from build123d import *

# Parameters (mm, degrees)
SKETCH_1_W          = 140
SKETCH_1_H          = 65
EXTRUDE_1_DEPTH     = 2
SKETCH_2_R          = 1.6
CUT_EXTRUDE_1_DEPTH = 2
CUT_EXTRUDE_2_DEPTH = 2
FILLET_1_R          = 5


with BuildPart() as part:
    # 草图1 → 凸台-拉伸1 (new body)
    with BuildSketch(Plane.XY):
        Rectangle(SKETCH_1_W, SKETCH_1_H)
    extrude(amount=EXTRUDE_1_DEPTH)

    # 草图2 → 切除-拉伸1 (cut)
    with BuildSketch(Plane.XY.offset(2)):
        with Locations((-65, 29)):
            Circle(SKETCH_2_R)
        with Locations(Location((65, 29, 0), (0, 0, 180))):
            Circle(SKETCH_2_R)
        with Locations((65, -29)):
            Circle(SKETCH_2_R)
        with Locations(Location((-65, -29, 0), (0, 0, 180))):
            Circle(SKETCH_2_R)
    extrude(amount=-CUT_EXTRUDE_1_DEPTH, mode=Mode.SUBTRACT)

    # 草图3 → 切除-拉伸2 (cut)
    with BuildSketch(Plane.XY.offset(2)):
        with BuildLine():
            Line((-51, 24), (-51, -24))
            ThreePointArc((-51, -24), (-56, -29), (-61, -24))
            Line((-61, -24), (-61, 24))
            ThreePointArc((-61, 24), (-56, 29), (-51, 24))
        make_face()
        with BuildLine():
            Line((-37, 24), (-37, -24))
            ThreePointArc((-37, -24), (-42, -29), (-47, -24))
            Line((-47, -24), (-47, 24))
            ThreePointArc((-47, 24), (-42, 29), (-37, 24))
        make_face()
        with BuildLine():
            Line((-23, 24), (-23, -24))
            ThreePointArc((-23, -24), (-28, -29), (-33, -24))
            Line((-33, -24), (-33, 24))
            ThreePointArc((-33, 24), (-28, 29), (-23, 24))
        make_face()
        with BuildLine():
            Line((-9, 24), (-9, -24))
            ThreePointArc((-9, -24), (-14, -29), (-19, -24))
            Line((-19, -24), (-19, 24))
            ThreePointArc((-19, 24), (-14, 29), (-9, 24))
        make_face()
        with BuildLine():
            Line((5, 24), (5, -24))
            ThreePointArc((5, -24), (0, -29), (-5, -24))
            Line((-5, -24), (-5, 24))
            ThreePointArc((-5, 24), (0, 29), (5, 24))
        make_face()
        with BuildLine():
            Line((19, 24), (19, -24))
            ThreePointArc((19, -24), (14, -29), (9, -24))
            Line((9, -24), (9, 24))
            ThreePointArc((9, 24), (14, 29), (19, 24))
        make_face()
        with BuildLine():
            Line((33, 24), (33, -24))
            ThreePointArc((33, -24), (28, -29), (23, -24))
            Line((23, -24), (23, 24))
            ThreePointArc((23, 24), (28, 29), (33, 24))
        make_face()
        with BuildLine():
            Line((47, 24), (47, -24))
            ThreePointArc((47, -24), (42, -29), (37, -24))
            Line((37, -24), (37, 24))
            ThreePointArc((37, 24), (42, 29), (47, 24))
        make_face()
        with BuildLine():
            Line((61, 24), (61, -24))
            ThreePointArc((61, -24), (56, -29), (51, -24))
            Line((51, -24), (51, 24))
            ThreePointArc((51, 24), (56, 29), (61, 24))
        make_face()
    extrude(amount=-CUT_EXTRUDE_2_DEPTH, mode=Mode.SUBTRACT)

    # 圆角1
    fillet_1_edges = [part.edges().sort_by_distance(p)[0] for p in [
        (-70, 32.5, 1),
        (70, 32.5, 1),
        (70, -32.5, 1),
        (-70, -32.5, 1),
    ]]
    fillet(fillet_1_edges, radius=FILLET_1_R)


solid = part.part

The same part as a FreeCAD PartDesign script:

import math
import FreeCAD as App
import Part
import Sketcher
Q = App.Units.Quantity


def edges_at(feature, points):
    """Names of the edges that pass closest to the given points."""
    edges = feature.Shape.Edges
    near = lambda p: min(range(len(edges)), key=lambda i: edges[i].distToShape(Part.Vertex(*p))[0])
    return sorted({f"Edge{near(p) + 1}" for p in points})


def add_polygon(sketch, points):
    """Adds a closed chain of lines whose ends are joined by coincident constraints."""
    first, n = sketch.GeometryCount, len(points)
    for a, b in zip(points, points[1:] + points[:1]):
        sketch.addGeometry(Part.LineSegment(App.Vector(*a, 0), App.Vector(*b, 0)), False)
    for i in range(n):
        sketch.addConstraint(Sketcher.Constraint("Coincident", first + i, 2, first + (i + 1) % n, 1))

doc = App.newDocument("Part")
body = doc.addObject("PartDesign::Body", "Body")

sketch1 = doc.addObject("Sketcher::SketchObject", "Sketch")
body.addObject(sketch1)
sketch1.AttachmentSupport = (doc.XY_Plane, [""])
sketch1.MapMode = "FlatFace"
add_polygon(sketch1, [(-70, 32), (-70, -32), (70, -32), (70, 32)])
sketch1.addConstraint([
    Sketcher.Constraint("Vertical", 0),
    Sketcher.Constraint("Horizontal", 1),
    Sketcher.Constraint("Vertical", 2),
    Sketcher.Constraint("Horizontal", 3),
    Sketcher.Constraint("Symmetric", 0, 2, 2, 2, -1, 1),
    Sketcher.Constraint("DistanceX", 1, 1, 1, 2, Q("140 mm")),
    Sketcher.Constraint("DistanceY", 0, 2, 0, 1, Q("65 mm")),
])
pad1 = doc.addObject("PartDesign::Pad", "Pad")
body.addObject(pad1)
pad1.Profile = sketch1
pad1.Length = 2

sketch2 = doc.addObject("Sketcher::SketchObject", "Sketch001")
body.addObject(sketch2)
sketch2.AttachmentSupport = (doc.XY_Plane, [""])
sketch2.MapMode = "FlatFace"
sketch2.AttachmentOffset = App.Placement(App.Vector(0, 0, 2), App.Rotation())
sketch2.addGeometry([
    Part.Circle(App.Vector(-65, 29, 0), App.Vector(0, 0, 1), 1.6),
    Part.Circle(App.Vector(65, 29, 0), App.Vector(0, 0, 1), 1.6),
    Part.Circle(App.Vector(65, -29, 0), App.Vector(0, 0, 1), 1.6),
    Part.Circle(App.Vector(-65, -29, 0), App.Vector(0, 0, 1), 1.6),
], False)
sketch2.addConstraint([
    Sketcher.Constraint("Equal", 0, 1),
    Sketcher.Constraint("Equal", 1, 2),
    Sketcher.Constraint("Equal", 2, 3),
    Sketcher.Constraint("Symmetric", 0, 3, 2, 3, -1, 1),
    Sketcher.Constraint("Symmetric", 1, 3, 3, 3, -1, 1),
    Sketcher.Constraint("Symmetric", 0, 3, 1, 3, -2),
    Sketcher.Constraint("Diameter", 0, Q("3.2 mm")),
    Sketcher.Constraint("DistanceX", 0, 3, -1, 1, Q("65 mm")),
    Sketcher.Constraint("DistanceY", -1, 1, 0, 3, Q("29 mm")),
])
pocket1 = doc.addObject("PartDesign::Pocket", "Pocket")
body.addObject(pocket1)
pocket1.Profile = sketch2
pocket1.Length = 2

sketch3 = doc.addObject("Sketcher::SketchObject", "Sketch002")
body.addObject(sketch3)
sketch3.AttachmentSupport = (doc.XY_Plane, [""])
sketch3.MapMode = "FlatFace"
sketch3.AttachmentOffset = App.Placement(App.Vector(0, 0, 2), App.Rotation())
sketch3.addGeometry([
    Part.LineSegment(App.Vector(-51, -24, 0), App.Vector(-51, 24, 0)),
    Part.ArcOfCircle(Part.Circle(App.Vector(-56, 24, 0), App.Vector(0, 0, 1), 5), math.radians(0), math.radians(180)),
    Part.LineSegment(App.Vector(-61, 24, 0), App.Vector(-61, -24, 0)),
    Part.ArcOfCircle(Part.Circle(App.Vector(-56, -24, 0), App.Vector(0, 0, 1), 5), math.radians(180), math.radians(360)),
    Part.LineSegment(App.Vector(-37, -24, 0), App.Vector(-37, 24, 0)),
    Part.ArcOfCircle(Part.Circle(App.Vector(-42, 24, 0), App.Vector(0, 0, 1), 5), math.radians(0), math.radians(180)),
    Part.LineSegment(App.Vector(-47, 24, 0), App.Vector(-47, -24, 0)),
    Part.ArcOfCircle(Part.Circle(App.Vector(-42, -24, 0), App.Vector(0, 0, 1), 5), math.radians(180), math.radians(360)),
    Part.LineSegment(App.Vector(-23, -24, 0), App.Vector(-23, 24, 0)),
    Part.ArcOfCircle(Part.Circle(App.Vector(-28, 24, 0), App.Vector(0, 0, 1), 5), math.radians(0), math.radians(180)),
    Part.LineSegment(App.Vector(-33, 24, 0), App.Vector(-33, -24, 0)),
    Part.ArcOfCircle(Part.Circle(App.Vector(-28, -24, 0), App.Vector(0, 0, 1), 5), math.radians(180), math.radians(360)),
    Part.LineSegment(App.Vector(-9, -24, 0), App.Vector(-9, 24, 0)),
    Part.ArcOfCircle(Part.Circle(App.Vector(-14, 24, 0), App.Vector(0, 0, 1), 5), math.radians(0), math.radians(180)),
    Part.LineSegment(App.Vector(-19, 24, 0), App.Vector(-19, -24, 0)),
    Part.ArcOfCircle(Part.Circle(App.Vector(-14, -24, 0), App.Vector(0, 0, 1), 5), math.radians(180), math.radians(360)),
    Part.LineSegment(App.Vector(5, -24, 0), App.Vector(5, 24, 0)),
    Part.ArcOfCircle(Part.Circle(App.Vector(0, 24, 0), App.Vector(0, 0, 1), 5), math.radians(0), math.radians(180)),
    Part.LineSegment(App.Vector(-5, 24, 0), App.Vector(-5, -24, 0)),
    Part.ArcOfCircle(Part.Circle(App.Vector(0, -24, 0), App.Vector(0, 0, 1), 5), math.radians(180), math.radians(360)),
    Part.LineSegment(App.Vector(19, -24, 0), App.Vector(19, 24, 0)),
    Part.ArcOfCircle(Part.Circle(App.Vector(14, 24, 0), App.Vector(0, 0, 1), 5), math.radians(0), math.radians(180)),
    Part.LineSegment(App.Vector(9, 24, 0), App.Vector(9, -24, 0)),
    Part.ArcOfCircle(Part.Circle(App.Vector(14, -24, 0), App.Vector(0, 0, 1), 5), math.radians(180), math.radians(360)),
    Part.LineSegment(App.Vector(33, -24, 0), App.Vector(33, 24, 0)),
    Part.ArcOfCircle(Part.Circle(App.Vector(28, 24, 0), App.Vector(0, 0, 1), 5), math.radians(0), math.radians(180)),
    Part.LineSegment(App.Vector(23, 24, 0), App.Vector(23, -24, 0)),
    Part.ArcOfCircle(Part.Circle(App.Vector(28, -24, 0), App.Vector(0, 0, 1), 5), math.radians(180), math.radians(360)),
    Part.LineSegment(App.Vector(47, -24, 0), App.Vector(47, 24, 0)),
    Part.ArcOfCircle(Part.Circle(App.Vector(42, 24, 0), App.Vector(0, 0, 1), 5), math.radians(0), math.radians(180)),
    Part.LineSegment(App.Vector(37, 24, 0), App.Vector(37, -24, 0)),
    Part.ArcOfCircle(Part.Circle(App.Vector(42, -24, 0), App.Vector(0, 0, 1), 5), math.radians(180), math.radians(360)),
    Part.LineSegment(App.Vector(61, -24, 0), App.Vector(61, 24, 0)),
    Part.ArcOfCircle(Part.Circle(App.Vector(56, 24, 0), App.Vector(0, 0, 1), 5), math.radians(0), math.radians(180)),
    Part.LineSegment(App.Vector(51, 24, 0), App.Vector(51, -24, 0)),
    Part.ArcOfCircle(Part.Circle(App.Vector(56, -24, 0), App.Vector(0, 0, 1), 5), math.radians(180), math.radians(360)),
], False)
sketch3.addConstraint([
    Sketcher.Constraint("Tangent", 0, 2, 1, 1),
    Sketcher.Constraint("Tangent", 1, 2, 2, 1),
    Sketcher.Constraint("Tangent", 2, 2, 3, 1),
    Sketcher.Constraint("Tangent", 3, 2, 0, 1),
    Sketcher.Constraint("Tangent", 4, 2, 5, 1),
    Sketcher.Constraint("Tangent", 5, 2, 6, 1),
    Sketcher.Constraint("Tangent", 6, 2, 7, 1),
    Sketcher.Constraint("Tangent", 7, 2, 4, 1),
    Sketcher.Constraint("Tangent", 8, 2, 9, 1),
    Sketcher.Constraint("Tangent", 9, 2, 10, 1),
    Sketcher.Constraint("Tangent", 10, 2, 11, 1),
    Sketcher.Constraint("Tangent", 11, 2, 8, 1),
    Sketcher.Constraint("Tangent", 12, 2, 13, 1),
    Sketcher.Constraint("Tangent", 13, 2, 14, 1),
    Sketcher.Constraint("Tangent", 14, 2, 15, 1),
    Sketcher.Constraint("Tangent", 15, 2, 12, 1),
    Sketcher.Constraint("Tangent", 16, 2, 17, 1),
    Sketcher.Constraint("Tangent", 17, 2, 18, 1),
    Sketcher.Constraint("Tangent", 18, 2, 19, 1),
    Sketcher.Constraint("Tangent", 19, 2, 16, 1),
    Sketcher.Constraint("Tangent", 20, 2, 21, 1),
    Sketcher.Constraint("Tangent", 21, 2, 22, 1),
    Sketcher.Constraint("Tangent", 22, 2, 23, 1),
    Sketcher.Constraint("Tangent", 23, 2, 20, 1),
    Sketcher.Constraint("Tangent", 24, 2, 25, 1),
    Sketcher.Constraint("Tangent", 25, 2, 26, 1),
    Sketcher.Constraint("Tangent", 26, 2, 27, 1),
    Sketcher.Constraint("Tangent", 27, 2, 24, 1),
    Sketcher.Constraint("Tangent", 28, 2, 29, 1),
    Sketcher.Constraint("Tangent", 29, 2, 30, 1),
    Sketcher.Constraint("Tangent", 30, 2, 31, 1),
    Sketcher.Constraint("Tangent", 31, 2, 28, 1),
    Sketcher.Constraint("Tangent", 32, 2, 33, 1),
    Sketcher.Constraint("Tangent", 33, 2, 34, 1),
    Sketcher.Constraint("Tangent", 34, 2, 35, 1),
    Sketcher.Constraint("Tangent", 35, 2, 32, 1),
    Sketcher.Constraint("Vertical", 0),
    Sketcher.Constraint("Vertical", 2),
    Sketcher.Constraint("Vertical", 4),
    Sketcher.Constraint("Vertical", 6),
    Sketcher.Constraint("Vertical", 8),
    Sketcher.Constraint("Vertical", 10),
    Sketcher.Constraint("Vertical", 12),
    Sketcher.Constraint("Vertical", 14),
    Sketcher.Constraint("Vertical", 16),
    Sketcher.Constraint("Vertical", 18),
    Sketcher.Constraint("Vertical", 20),
    Sketcher.Constraint("Vertical", 22),
    Sketcher.Constraint("Vertical", 24),
    Sketcher.Constraint("Vertical", 26),
    Sketcher.Constraint("Vertical", 28),
    Sketcher.Constraint("Vertical", 30),
    Sketcher.Constraint("Vertical", 32),
    Sketcher.Constraint("Vertical", 34),
    Sketcher.Constraint("Equal", 3, 5),
    Sketcher.Constraint("Equal", 7, 9),
    Sketcher.Constraint("Equal", 11, 13),
    Sketcher.Constraint("Equal", 15, 17),
    Sketcher.Constraint("Equal", 19, 21),
    Sketcher.Constraint("Equal", 23, 25),
    Sketcher.Constraint("Equal", 27, 29),
    Sketcher.Constraint("Equal", 31, 33),
    Sketcher.Constraint("Symmetric", 17, 3, 19, 3, -1, 1),
    Sketcher.Constraint("Symmetric", 15, 3, 21, 3, -1, 1),
    Sketcher.Constraint("Symmetric", 11, 3, 25, 3, -1, 1),
    Sketcher.Constraint("Symmetric", 7, 3, 29, 3, -1, 1),
    Sketcher.Constraint("Symmetric", 3, 3, 33, 3, -1, 1),
    Sketcher.Constraint("Horizontal", 1, 3, 5, 3),
    Sketcher.Constraint("Horizontal", 3, 3, 7, 3),
    Sketcher.Constraint("Horizontal", 5, 3, 9, 3),
    Sketcher.Constraint("Horizontal", 7, 3, 11, 3),
    Sketcher.Constraint("Horizontal", 9, 3, 13, 3),
    Sketcher.Constraint("Horizontal", 11, 3, 15, 3),
    Sketcher.Constraint("Horizontal", 13, 3, 17, 3),
    Sketcher.Constraint("Horizontal", 15, 3, 19, 3),
    Sketcher.Constraint("Horizontal", 19, 3, 23, 3),
    Sketcher.Constraint("Horizontal", 23, 3, 27, 3),
    Sketcher.Constraint("Horizontal", 27, 3, 31, 3),
    Sketcher.Constraint("Horizontal", 31, 3, 35, 3),
    Sketcher.Constraint("Radius", 1, Q("5 mm")),
    Sketcher.Constraint("DistanceY", 0, 1, 0, 2, Q("48 mm")),
    Sketcher.Constraint("DistanceX", 1, 3, -1, 1, Q("56 mm")),
    Sketcher.Constraint("DistanceX", 5, 3, -1, 1, Q("42 mm")),
    Sketcher.Constraint("DistanceX", 9, 3, -1, 1, Q("28 mm")),
    Sketcher.Constraint("DistanceX", 13, 3, -1, 1, Q("14 mm")),
])
pocket2 = doc.addObject("PartDesign::Pocket", "Pocket001")
body.addObject(pocket2)
pocket2.Profile = sketch3
pocket2.Length = 2
doc.recompute()

fillet = doc.addObject("PartDesign::Fillet", "Fillet")
body.addObject(fillet)
fillet.Base = (pocket2, edges_at(pocket2, [
    (-70, 32.5, 1),
    (70, 32.5, 1),
    (70, -32.5, 1),
    (-70, -32.5, 1),
]))
fillet.Radius = 5

doc.recompute()
